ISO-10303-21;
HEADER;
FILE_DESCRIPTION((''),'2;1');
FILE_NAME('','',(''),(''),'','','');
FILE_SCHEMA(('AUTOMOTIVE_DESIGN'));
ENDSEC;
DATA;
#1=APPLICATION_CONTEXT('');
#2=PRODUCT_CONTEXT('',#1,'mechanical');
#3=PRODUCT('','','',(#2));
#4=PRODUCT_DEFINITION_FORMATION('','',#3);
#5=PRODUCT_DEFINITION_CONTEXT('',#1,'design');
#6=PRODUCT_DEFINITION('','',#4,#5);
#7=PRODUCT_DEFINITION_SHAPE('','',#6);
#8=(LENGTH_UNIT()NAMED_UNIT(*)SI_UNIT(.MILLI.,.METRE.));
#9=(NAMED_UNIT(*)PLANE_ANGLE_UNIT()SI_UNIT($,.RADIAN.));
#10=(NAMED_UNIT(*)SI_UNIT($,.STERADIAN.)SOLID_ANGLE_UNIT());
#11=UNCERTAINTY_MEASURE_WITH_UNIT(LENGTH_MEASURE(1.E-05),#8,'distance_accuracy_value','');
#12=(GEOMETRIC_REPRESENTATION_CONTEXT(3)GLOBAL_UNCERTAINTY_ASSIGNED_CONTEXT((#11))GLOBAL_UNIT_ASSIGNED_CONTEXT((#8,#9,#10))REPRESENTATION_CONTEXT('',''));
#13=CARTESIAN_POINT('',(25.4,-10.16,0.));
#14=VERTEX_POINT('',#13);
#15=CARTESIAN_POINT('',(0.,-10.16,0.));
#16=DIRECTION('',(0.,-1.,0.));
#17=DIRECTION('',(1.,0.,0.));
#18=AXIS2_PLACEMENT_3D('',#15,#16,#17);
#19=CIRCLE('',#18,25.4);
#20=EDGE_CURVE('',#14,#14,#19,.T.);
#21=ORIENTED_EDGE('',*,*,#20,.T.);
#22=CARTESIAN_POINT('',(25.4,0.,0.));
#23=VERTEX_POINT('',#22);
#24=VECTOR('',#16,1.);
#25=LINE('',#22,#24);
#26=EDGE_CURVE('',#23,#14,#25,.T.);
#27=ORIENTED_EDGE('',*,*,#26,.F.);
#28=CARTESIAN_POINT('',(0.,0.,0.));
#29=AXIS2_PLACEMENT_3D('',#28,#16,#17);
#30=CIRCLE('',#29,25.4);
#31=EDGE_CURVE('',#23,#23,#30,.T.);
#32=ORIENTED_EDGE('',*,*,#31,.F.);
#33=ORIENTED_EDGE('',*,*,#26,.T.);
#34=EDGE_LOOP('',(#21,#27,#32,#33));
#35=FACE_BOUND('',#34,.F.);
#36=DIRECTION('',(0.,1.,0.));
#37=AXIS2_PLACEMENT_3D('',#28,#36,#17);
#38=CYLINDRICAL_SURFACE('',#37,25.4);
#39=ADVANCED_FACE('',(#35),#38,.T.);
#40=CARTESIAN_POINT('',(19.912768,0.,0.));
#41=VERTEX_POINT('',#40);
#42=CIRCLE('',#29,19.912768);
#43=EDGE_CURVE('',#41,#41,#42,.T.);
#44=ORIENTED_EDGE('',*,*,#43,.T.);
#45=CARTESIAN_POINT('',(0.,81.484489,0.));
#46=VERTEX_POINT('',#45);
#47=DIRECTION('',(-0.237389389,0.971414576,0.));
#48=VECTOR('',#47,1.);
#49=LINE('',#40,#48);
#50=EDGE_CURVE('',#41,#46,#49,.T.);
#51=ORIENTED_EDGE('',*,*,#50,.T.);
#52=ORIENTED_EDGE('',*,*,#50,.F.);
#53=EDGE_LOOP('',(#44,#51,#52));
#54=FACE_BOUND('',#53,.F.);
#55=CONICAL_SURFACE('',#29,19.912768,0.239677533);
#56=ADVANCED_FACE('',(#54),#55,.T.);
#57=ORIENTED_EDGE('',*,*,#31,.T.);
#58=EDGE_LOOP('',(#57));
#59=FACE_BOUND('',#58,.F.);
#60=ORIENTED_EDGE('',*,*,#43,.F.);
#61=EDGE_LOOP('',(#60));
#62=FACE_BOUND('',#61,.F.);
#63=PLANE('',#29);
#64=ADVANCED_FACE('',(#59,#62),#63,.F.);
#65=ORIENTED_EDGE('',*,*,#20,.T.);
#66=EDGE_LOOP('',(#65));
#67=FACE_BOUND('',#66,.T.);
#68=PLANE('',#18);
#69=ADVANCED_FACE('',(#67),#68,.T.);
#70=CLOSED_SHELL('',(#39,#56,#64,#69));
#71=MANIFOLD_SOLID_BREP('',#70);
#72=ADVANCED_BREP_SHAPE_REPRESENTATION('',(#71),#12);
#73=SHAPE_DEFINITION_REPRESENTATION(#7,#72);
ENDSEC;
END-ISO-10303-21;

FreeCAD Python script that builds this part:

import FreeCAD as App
import Part
import Sketcher
from FreeCAD import Vector
Q = App.Units.Quantity


def add_polygon(sketch, points):
    """Adds a closed chain of lines whose ends are joined by coincident constraints."""
    first, n = sketch.GeometryCount, len(points)
    for a, b in zip(points, points[1:] + points[:1]):
        sketch.addGeometry(Part.LineSegment(App.Vector(*a, 0), App.Vector(*b, 0)), False)
    for i in range(n):
        sketch.addConstraint(Sketcher.Constraint("Coincident", first + i, 2, first + (i + 1) % n, 1))

doc = App.newDocument("Part")
body = doc.addObject("PartDesign::Body", "Body")

sketch1 = doc.addObject("Sketcher::SketchObject", "Sketch")
body.addObject(sketch1)
sketch1.AttachmentSupport = (doc.XZ_Plane, [""])
sketch1.MapMode = "FlatFace"
sketch1.addGeometry(Part.Circle(Vector(0, 0, 0), Vector(0, 0, 1), 25), False)
sketch1.addConstraint(Sketcher.Constraint("Coincident", 0, 3, -1, 1))
sketch1.addConstraint(Sketcher.Constraint("Diameter", 0, Q("2 in")))
pad1 = doc.addObject("PartDesign::Pad", "Pad")
body.addObject(pad1)
pad1.Profile = sketch1
pad1.Length = Q("0.4 in")

sketch2 = doc.addObject("Sketcher::SketchObject", "Sketch001")
body.addObject(sketch2)
sketch2.AttachmentSupport = (doc.XY_Plane, [""])
sketch2.MapMode = "FlatFace"
add_polygon(sketch2, [(0, 81), (0, 0), (20, 0)])
sketch2.addConstraint(Sketcher.Constraint("Vertical", 0))
sketch2.addConstraint(Sketcher.Constraint("Horizontal", 1))
sketch2.addConstraint(Sketcher.Constraint("Coincident", 0, 2, -1, 1))
sketch2.addConstraint(Sketcher.Constraint("Distance", 2, Q("83.8823 mm")))
sketch2.addConstraint(Sketcher.Constraint("DistanceX", 1, 1, 1, 2, Q("19.912768 mm")))
revolution = doc.addObject("PartDesign::Revolution", "Revolution")
body.addObject(revolution)
revolution.Profile = sketch2
revolution.ReferenceAxis = (sketch2, ["V_Axis"])
revolution.Angle = 360

doc.recompute()
